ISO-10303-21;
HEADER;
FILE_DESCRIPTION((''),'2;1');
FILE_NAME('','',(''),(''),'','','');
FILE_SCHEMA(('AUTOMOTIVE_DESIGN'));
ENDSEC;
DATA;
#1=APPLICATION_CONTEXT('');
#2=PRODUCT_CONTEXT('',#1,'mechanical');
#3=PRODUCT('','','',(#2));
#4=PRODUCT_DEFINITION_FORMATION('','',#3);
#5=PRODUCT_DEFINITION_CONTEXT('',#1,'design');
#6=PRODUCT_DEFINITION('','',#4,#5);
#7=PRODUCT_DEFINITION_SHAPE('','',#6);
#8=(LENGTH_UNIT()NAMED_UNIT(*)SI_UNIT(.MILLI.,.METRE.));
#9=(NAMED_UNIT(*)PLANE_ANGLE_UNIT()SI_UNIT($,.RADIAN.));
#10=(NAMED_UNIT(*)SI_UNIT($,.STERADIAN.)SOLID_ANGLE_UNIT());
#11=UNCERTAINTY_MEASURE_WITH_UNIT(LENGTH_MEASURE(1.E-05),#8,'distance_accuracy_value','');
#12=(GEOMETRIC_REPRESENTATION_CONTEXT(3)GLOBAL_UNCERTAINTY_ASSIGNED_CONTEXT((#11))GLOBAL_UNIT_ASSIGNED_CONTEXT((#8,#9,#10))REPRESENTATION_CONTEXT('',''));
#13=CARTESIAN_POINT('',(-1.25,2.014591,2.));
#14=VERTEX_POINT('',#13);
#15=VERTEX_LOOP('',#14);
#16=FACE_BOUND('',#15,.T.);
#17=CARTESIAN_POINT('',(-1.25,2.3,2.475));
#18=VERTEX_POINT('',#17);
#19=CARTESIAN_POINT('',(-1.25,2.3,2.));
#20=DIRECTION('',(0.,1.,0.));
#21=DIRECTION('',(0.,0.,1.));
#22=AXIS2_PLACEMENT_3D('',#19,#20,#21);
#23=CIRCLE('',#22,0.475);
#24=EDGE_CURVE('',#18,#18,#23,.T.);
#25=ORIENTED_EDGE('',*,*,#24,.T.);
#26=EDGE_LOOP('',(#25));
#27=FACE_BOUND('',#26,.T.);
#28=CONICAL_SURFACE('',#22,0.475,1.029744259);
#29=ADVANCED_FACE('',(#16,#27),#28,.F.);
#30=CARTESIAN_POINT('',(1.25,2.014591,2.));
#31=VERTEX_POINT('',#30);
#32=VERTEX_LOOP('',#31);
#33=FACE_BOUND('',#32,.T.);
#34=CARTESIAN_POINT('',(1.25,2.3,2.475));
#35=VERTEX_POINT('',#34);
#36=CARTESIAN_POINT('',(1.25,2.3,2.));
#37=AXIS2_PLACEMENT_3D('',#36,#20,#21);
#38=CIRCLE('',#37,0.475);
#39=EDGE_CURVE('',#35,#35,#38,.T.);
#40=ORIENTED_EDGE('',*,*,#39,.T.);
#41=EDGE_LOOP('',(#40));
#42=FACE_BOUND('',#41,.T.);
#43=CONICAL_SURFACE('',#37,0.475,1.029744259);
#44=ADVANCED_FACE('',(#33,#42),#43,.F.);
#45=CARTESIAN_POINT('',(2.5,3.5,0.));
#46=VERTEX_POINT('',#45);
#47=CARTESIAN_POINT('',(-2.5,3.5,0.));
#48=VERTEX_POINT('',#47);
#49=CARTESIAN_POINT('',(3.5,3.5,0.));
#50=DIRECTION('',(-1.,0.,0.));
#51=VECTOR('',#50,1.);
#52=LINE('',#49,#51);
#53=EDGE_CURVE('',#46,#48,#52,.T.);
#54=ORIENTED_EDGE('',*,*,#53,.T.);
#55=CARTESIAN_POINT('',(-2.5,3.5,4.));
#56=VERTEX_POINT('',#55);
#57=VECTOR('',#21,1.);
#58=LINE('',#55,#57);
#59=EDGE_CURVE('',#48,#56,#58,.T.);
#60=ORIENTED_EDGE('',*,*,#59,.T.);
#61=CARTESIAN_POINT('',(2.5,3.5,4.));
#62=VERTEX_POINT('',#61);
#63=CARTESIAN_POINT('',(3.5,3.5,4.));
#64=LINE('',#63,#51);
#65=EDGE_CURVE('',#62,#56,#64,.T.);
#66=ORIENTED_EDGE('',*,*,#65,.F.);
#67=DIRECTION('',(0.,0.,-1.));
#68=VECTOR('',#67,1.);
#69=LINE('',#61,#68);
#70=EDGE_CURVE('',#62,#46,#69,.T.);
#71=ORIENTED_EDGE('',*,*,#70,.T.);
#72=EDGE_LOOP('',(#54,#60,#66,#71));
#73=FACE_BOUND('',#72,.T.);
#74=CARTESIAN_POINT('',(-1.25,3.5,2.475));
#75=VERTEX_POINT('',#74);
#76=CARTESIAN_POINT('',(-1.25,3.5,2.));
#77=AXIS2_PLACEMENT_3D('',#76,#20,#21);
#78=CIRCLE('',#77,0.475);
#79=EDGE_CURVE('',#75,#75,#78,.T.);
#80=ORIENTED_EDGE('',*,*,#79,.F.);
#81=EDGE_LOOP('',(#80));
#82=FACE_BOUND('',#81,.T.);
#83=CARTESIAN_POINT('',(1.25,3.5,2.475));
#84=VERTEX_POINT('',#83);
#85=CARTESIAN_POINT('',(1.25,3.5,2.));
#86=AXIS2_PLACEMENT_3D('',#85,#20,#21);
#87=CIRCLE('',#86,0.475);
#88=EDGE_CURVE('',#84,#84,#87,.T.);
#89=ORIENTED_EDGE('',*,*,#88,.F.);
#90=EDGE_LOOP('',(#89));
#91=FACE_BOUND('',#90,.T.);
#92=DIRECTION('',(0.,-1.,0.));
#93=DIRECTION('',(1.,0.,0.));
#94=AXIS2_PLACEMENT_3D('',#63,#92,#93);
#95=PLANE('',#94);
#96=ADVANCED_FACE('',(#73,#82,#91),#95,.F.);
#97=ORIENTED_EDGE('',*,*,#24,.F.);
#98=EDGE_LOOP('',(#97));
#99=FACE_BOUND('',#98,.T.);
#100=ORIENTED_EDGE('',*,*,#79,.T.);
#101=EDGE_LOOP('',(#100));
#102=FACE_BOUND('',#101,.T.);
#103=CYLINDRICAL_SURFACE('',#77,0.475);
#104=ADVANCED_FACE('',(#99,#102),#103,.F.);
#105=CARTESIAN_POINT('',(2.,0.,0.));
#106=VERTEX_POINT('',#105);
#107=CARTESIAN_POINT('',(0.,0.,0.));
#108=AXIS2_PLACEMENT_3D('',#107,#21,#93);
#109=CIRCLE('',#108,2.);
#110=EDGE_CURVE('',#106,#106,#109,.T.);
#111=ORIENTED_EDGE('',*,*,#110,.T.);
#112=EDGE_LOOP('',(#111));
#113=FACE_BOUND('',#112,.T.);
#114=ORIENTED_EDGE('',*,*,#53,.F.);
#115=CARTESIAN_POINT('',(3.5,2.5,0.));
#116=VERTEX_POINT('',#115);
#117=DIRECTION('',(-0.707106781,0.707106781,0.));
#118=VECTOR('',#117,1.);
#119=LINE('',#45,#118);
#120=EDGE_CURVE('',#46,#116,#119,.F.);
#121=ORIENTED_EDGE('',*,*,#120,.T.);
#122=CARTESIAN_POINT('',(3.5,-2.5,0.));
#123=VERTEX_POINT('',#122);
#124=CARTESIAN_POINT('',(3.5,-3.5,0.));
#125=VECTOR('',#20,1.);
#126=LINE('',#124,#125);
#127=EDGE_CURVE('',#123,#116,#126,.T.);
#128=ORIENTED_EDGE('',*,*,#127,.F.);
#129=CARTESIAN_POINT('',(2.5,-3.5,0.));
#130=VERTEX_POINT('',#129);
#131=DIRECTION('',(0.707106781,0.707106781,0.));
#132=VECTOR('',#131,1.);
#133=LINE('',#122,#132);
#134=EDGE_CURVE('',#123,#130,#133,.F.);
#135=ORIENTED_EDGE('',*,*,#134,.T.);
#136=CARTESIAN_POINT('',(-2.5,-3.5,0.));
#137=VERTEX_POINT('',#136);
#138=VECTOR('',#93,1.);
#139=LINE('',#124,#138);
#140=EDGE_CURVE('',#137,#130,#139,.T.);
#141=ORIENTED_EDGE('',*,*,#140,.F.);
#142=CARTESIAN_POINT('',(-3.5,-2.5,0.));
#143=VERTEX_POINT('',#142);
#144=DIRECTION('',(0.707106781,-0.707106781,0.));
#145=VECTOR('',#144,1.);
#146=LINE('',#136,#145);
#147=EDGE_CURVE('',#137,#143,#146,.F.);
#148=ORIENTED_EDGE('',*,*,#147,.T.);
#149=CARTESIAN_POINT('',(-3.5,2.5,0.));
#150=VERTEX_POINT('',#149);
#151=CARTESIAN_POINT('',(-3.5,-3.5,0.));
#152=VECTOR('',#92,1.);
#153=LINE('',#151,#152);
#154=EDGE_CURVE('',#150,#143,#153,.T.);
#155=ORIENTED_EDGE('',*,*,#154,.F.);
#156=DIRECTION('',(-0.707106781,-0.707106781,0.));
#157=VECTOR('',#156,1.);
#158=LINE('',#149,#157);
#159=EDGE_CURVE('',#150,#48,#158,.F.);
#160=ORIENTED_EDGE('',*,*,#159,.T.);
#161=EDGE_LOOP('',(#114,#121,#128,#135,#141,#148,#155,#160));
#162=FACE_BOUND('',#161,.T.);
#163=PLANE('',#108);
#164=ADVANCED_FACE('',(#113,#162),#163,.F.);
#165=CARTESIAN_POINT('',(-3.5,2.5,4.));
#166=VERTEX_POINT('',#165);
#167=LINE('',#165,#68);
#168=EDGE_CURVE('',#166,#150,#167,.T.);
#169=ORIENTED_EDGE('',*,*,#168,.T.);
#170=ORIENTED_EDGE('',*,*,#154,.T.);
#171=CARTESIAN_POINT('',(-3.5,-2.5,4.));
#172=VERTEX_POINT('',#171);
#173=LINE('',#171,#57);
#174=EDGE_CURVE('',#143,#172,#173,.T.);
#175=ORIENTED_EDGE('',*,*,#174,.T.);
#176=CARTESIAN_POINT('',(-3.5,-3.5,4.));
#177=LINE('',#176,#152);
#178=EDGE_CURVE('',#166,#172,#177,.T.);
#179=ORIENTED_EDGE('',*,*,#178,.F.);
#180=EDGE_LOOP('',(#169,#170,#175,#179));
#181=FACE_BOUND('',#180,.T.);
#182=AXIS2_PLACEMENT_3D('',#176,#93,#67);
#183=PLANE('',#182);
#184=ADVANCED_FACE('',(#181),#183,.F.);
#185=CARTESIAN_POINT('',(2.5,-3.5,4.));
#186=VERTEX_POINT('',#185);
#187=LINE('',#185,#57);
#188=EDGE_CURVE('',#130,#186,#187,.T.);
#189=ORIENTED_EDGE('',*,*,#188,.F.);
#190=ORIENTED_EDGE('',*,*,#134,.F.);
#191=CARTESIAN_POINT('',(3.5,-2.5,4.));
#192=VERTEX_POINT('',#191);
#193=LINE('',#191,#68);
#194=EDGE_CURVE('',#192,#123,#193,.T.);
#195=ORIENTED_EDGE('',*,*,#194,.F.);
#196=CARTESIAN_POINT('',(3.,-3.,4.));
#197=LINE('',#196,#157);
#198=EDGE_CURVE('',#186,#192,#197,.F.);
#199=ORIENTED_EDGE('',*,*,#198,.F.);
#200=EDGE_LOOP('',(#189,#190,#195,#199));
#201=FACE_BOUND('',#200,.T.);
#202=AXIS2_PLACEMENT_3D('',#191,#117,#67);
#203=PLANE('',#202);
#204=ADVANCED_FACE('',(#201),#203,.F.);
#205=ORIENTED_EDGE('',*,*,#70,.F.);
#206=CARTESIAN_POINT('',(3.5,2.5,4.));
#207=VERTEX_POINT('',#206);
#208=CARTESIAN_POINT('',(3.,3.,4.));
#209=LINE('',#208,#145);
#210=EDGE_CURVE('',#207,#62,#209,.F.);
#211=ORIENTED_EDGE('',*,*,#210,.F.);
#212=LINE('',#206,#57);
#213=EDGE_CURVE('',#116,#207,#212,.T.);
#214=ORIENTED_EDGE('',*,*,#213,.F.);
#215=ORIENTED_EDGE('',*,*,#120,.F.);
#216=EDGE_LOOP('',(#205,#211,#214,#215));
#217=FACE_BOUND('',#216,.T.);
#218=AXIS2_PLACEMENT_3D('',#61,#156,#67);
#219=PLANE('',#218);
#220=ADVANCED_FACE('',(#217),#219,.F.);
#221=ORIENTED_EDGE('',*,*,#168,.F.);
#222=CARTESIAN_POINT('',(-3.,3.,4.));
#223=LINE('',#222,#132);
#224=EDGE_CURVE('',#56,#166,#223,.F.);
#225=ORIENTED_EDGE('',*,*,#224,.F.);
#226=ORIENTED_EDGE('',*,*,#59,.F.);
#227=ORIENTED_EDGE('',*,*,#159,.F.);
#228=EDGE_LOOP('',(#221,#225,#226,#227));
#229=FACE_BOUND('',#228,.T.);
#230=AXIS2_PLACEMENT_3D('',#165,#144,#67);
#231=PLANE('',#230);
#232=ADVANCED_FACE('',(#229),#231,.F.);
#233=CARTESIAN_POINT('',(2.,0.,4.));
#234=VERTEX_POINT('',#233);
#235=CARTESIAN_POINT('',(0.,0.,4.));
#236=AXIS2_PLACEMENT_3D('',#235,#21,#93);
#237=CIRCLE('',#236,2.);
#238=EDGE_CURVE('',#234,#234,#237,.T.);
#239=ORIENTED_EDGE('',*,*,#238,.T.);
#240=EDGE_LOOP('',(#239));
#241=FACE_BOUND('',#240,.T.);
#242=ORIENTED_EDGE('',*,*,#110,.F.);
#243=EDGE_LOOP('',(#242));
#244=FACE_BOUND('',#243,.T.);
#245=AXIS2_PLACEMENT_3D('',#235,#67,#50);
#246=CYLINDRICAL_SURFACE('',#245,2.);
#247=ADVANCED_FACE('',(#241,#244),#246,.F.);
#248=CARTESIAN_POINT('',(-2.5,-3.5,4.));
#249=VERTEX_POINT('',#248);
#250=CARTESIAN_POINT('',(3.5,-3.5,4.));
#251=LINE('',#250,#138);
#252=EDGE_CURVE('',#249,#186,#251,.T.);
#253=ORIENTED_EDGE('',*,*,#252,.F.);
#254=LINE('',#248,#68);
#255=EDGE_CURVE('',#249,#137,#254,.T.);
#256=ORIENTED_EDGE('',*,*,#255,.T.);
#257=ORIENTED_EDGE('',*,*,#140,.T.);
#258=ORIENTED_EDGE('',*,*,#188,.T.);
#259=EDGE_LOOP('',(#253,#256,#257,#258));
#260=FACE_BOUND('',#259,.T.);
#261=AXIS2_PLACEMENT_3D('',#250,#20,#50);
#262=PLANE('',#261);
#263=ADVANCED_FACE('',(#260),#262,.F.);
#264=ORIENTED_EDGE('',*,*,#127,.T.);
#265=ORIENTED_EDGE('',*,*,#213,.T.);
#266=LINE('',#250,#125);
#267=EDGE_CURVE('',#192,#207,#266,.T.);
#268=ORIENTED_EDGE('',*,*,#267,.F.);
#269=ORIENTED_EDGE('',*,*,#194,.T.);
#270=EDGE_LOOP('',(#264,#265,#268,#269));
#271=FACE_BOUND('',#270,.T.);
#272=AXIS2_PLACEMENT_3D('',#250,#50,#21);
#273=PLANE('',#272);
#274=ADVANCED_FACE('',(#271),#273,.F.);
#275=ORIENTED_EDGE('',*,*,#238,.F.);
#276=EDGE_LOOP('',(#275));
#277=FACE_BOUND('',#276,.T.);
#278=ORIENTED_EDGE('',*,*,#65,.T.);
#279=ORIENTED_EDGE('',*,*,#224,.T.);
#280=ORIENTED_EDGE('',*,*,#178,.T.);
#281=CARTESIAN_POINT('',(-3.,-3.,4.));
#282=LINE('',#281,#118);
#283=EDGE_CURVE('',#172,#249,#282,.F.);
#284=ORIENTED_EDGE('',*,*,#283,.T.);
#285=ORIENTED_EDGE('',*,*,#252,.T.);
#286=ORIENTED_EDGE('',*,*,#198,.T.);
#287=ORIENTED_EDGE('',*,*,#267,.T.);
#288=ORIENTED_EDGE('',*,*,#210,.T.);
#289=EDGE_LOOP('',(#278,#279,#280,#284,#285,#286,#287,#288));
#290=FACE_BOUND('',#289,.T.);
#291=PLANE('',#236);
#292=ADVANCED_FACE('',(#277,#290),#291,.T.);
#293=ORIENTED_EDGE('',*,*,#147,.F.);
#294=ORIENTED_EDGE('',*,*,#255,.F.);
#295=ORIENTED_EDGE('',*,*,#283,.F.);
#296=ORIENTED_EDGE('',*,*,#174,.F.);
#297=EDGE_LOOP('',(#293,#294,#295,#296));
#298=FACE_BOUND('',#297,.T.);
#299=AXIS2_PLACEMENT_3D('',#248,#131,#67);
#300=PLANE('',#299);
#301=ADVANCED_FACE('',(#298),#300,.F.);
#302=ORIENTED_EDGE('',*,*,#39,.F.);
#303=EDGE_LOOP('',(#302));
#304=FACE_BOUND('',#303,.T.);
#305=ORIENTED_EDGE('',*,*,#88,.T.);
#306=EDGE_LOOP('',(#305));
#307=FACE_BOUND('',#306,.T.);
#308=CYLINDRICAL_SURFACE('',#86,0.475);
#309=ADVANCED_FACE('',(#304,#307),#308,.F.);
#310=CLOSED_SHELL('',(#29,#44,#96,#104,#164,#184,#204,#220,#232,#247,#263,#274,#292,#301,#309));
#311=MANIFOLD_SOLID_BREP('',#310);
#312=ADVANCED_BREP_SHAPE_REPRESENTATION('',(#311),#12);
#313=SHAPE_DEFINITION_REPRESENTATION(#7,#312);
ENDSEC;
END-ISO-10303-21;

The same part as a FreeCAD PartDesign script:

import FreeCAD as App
import Part
import Sketcher
from FreeCAD import Vector


def edges_at(feature, points):
    """Names of the edges that pass closest to the given points."""
    edges = feature.Shape.Edges
    near = lambda p: min(range(len(edges)), key=lambda i: edges[i].distToShape(Part.Vertex(*p))[0])
    return sorted({f"Edge{near(p) + 1}" for p in points})

doc = App.newDocument("Part")
body = doc.addObject("PartDesign::Body", "Body")

sketch1 = body.newObject("Sketcher::SketchObject", "Sketch")
sketch1.AttachmentSupport = (doc.getObject("XY_Plane"), [""])
sketch1.MapMode = "FlatFace"
sketch1.addGeometry(Part.LineSegment(Vector(-3.5, 3.5, 0), Vector(-3.5, -3.5, 0)), False)
sketch1.addGeometry(Part.LineSegment(Vector(-3.5, -3.5, 0), Vector(3.5, -3.5, 0)), False)
sketch1.addGeometry(Part.LineSegment(Vector(3.5, -3.5, 0), Vector(3.5, 3.5, 0)), False)
sketch1.addGeometry(Part.LineSegment(Vector(3.5, 3.5, 0), Vector(-3.5, 3.5, 0)), False)
sketch1.addGeometry(Part.Circle(Vector(0, 0, 0), Vector(0, 0, 1), 2), False)
sketch1.addConstraint(Sketcher.Constraint("Coincident", 0, 2, 1, 1))
sketch1.addConstraint(Sketcher.Constraint("Coincident", 1, 2, 2, 1))
sketch1.addConstraint(Sketcher.Constraint("Coincident", 2, 2, 3, 1))
sketch1.addConstraint(Sketcher.Constraint("Coincident", 3, 2, 0, 1))
sketch1.addConstraint(Sketcher.Constraint("Vertical", 0))
sketch1.addConstraint(Sketcher.Constraint("Horizontal", 1))
sketch1.addConstraint(Sketcher.Constraint("Vertical", 2))
sketch1.addConstraint(Sketcher.Constraint("Horizontal", 3))
sketch1.addConstraint(Sketcher.Constraint("Coincident", 4, 3, -1, 1))
sketch1.addConstraint(Sketcher.Constraint("Symmetric", 0, 2, 2, 2, -1, 1))
sketch1.addConstraint(Sketcher.Constraint("Equal", 3, 0))
sketch1.addConstraint(Sketcher.Constraint("Diameter", 4, 4.0))
sketch1.addConstraint(Sketcher.Constraint("DistanceX", 1, 1, 1, 2, 7.0))
pad1 = body.newObject("PartDesign::Pad", "Pad")
pad1.Profile = sketch1
pad1.Length = 4
doc.recompute()

chamfer = body.newObject("PartDesign::Chamfer", "Chamfer")
chamfer.Base = (pad1, edges_at(pad1, [
    (-3.5, 3.5, 2),
    (3.5, 3.5, 2),
    (3.5, -3.5, 2),
    (-3.5, -3.5, 2),
]))
chamfer.Size = 1

sketch2 = body.newObject("Sketcher::SketchObject", "Sketch001")
sketch2.AttachmentSupport = (doc.getObject("XZ_Plane"), [""])
sketch2.MapMode = "FlatFace"
sketch2.AttachmentOffset = App.Placement(Vector(0, 0, -3.5), App.Rotation())
sketch2.addGeometry(Part.Circle(Vector(-1.25, 2, 0), Vector(0, 0, 1), 0.47), False)
sketch2.addGeometry(Part.Circle(Vector(1.25, 2, 0), Vector(0, 0, 1), 0.47), False)
sketch2.addConstraint(Sketcher.Constraint("Equal", 0, 1))
sketch2.addConstraint(Sketcher.Constraint("Symmetric", 0, 3, 1, 3, -2))
sketch2.addConstraint(Sketcher.Constraint("Diameter", 0, 0.95))
sketch2.addConstraint(Sketcher.Constraint("DistanceY", -1, 1, 0, 3, 2.0))
sketch2.addConstraint(Sketcher.Constraint("DistanceX", 0, 3, 1, 3, 2.5))
doc.recompute()
hole = body.newObject("PartDesign::Hole", "Hole")
hole.Profile = sketch2
hole.ThreadType = "None"
hole.Diameter = 0.95
hole.DepthType = "Dimension"
hole.Depth = 1.2
hole.DrillPoint = "Angled"
hole.DrillPointAngle = 118
hole.Reversed = True

doc.recompute()
